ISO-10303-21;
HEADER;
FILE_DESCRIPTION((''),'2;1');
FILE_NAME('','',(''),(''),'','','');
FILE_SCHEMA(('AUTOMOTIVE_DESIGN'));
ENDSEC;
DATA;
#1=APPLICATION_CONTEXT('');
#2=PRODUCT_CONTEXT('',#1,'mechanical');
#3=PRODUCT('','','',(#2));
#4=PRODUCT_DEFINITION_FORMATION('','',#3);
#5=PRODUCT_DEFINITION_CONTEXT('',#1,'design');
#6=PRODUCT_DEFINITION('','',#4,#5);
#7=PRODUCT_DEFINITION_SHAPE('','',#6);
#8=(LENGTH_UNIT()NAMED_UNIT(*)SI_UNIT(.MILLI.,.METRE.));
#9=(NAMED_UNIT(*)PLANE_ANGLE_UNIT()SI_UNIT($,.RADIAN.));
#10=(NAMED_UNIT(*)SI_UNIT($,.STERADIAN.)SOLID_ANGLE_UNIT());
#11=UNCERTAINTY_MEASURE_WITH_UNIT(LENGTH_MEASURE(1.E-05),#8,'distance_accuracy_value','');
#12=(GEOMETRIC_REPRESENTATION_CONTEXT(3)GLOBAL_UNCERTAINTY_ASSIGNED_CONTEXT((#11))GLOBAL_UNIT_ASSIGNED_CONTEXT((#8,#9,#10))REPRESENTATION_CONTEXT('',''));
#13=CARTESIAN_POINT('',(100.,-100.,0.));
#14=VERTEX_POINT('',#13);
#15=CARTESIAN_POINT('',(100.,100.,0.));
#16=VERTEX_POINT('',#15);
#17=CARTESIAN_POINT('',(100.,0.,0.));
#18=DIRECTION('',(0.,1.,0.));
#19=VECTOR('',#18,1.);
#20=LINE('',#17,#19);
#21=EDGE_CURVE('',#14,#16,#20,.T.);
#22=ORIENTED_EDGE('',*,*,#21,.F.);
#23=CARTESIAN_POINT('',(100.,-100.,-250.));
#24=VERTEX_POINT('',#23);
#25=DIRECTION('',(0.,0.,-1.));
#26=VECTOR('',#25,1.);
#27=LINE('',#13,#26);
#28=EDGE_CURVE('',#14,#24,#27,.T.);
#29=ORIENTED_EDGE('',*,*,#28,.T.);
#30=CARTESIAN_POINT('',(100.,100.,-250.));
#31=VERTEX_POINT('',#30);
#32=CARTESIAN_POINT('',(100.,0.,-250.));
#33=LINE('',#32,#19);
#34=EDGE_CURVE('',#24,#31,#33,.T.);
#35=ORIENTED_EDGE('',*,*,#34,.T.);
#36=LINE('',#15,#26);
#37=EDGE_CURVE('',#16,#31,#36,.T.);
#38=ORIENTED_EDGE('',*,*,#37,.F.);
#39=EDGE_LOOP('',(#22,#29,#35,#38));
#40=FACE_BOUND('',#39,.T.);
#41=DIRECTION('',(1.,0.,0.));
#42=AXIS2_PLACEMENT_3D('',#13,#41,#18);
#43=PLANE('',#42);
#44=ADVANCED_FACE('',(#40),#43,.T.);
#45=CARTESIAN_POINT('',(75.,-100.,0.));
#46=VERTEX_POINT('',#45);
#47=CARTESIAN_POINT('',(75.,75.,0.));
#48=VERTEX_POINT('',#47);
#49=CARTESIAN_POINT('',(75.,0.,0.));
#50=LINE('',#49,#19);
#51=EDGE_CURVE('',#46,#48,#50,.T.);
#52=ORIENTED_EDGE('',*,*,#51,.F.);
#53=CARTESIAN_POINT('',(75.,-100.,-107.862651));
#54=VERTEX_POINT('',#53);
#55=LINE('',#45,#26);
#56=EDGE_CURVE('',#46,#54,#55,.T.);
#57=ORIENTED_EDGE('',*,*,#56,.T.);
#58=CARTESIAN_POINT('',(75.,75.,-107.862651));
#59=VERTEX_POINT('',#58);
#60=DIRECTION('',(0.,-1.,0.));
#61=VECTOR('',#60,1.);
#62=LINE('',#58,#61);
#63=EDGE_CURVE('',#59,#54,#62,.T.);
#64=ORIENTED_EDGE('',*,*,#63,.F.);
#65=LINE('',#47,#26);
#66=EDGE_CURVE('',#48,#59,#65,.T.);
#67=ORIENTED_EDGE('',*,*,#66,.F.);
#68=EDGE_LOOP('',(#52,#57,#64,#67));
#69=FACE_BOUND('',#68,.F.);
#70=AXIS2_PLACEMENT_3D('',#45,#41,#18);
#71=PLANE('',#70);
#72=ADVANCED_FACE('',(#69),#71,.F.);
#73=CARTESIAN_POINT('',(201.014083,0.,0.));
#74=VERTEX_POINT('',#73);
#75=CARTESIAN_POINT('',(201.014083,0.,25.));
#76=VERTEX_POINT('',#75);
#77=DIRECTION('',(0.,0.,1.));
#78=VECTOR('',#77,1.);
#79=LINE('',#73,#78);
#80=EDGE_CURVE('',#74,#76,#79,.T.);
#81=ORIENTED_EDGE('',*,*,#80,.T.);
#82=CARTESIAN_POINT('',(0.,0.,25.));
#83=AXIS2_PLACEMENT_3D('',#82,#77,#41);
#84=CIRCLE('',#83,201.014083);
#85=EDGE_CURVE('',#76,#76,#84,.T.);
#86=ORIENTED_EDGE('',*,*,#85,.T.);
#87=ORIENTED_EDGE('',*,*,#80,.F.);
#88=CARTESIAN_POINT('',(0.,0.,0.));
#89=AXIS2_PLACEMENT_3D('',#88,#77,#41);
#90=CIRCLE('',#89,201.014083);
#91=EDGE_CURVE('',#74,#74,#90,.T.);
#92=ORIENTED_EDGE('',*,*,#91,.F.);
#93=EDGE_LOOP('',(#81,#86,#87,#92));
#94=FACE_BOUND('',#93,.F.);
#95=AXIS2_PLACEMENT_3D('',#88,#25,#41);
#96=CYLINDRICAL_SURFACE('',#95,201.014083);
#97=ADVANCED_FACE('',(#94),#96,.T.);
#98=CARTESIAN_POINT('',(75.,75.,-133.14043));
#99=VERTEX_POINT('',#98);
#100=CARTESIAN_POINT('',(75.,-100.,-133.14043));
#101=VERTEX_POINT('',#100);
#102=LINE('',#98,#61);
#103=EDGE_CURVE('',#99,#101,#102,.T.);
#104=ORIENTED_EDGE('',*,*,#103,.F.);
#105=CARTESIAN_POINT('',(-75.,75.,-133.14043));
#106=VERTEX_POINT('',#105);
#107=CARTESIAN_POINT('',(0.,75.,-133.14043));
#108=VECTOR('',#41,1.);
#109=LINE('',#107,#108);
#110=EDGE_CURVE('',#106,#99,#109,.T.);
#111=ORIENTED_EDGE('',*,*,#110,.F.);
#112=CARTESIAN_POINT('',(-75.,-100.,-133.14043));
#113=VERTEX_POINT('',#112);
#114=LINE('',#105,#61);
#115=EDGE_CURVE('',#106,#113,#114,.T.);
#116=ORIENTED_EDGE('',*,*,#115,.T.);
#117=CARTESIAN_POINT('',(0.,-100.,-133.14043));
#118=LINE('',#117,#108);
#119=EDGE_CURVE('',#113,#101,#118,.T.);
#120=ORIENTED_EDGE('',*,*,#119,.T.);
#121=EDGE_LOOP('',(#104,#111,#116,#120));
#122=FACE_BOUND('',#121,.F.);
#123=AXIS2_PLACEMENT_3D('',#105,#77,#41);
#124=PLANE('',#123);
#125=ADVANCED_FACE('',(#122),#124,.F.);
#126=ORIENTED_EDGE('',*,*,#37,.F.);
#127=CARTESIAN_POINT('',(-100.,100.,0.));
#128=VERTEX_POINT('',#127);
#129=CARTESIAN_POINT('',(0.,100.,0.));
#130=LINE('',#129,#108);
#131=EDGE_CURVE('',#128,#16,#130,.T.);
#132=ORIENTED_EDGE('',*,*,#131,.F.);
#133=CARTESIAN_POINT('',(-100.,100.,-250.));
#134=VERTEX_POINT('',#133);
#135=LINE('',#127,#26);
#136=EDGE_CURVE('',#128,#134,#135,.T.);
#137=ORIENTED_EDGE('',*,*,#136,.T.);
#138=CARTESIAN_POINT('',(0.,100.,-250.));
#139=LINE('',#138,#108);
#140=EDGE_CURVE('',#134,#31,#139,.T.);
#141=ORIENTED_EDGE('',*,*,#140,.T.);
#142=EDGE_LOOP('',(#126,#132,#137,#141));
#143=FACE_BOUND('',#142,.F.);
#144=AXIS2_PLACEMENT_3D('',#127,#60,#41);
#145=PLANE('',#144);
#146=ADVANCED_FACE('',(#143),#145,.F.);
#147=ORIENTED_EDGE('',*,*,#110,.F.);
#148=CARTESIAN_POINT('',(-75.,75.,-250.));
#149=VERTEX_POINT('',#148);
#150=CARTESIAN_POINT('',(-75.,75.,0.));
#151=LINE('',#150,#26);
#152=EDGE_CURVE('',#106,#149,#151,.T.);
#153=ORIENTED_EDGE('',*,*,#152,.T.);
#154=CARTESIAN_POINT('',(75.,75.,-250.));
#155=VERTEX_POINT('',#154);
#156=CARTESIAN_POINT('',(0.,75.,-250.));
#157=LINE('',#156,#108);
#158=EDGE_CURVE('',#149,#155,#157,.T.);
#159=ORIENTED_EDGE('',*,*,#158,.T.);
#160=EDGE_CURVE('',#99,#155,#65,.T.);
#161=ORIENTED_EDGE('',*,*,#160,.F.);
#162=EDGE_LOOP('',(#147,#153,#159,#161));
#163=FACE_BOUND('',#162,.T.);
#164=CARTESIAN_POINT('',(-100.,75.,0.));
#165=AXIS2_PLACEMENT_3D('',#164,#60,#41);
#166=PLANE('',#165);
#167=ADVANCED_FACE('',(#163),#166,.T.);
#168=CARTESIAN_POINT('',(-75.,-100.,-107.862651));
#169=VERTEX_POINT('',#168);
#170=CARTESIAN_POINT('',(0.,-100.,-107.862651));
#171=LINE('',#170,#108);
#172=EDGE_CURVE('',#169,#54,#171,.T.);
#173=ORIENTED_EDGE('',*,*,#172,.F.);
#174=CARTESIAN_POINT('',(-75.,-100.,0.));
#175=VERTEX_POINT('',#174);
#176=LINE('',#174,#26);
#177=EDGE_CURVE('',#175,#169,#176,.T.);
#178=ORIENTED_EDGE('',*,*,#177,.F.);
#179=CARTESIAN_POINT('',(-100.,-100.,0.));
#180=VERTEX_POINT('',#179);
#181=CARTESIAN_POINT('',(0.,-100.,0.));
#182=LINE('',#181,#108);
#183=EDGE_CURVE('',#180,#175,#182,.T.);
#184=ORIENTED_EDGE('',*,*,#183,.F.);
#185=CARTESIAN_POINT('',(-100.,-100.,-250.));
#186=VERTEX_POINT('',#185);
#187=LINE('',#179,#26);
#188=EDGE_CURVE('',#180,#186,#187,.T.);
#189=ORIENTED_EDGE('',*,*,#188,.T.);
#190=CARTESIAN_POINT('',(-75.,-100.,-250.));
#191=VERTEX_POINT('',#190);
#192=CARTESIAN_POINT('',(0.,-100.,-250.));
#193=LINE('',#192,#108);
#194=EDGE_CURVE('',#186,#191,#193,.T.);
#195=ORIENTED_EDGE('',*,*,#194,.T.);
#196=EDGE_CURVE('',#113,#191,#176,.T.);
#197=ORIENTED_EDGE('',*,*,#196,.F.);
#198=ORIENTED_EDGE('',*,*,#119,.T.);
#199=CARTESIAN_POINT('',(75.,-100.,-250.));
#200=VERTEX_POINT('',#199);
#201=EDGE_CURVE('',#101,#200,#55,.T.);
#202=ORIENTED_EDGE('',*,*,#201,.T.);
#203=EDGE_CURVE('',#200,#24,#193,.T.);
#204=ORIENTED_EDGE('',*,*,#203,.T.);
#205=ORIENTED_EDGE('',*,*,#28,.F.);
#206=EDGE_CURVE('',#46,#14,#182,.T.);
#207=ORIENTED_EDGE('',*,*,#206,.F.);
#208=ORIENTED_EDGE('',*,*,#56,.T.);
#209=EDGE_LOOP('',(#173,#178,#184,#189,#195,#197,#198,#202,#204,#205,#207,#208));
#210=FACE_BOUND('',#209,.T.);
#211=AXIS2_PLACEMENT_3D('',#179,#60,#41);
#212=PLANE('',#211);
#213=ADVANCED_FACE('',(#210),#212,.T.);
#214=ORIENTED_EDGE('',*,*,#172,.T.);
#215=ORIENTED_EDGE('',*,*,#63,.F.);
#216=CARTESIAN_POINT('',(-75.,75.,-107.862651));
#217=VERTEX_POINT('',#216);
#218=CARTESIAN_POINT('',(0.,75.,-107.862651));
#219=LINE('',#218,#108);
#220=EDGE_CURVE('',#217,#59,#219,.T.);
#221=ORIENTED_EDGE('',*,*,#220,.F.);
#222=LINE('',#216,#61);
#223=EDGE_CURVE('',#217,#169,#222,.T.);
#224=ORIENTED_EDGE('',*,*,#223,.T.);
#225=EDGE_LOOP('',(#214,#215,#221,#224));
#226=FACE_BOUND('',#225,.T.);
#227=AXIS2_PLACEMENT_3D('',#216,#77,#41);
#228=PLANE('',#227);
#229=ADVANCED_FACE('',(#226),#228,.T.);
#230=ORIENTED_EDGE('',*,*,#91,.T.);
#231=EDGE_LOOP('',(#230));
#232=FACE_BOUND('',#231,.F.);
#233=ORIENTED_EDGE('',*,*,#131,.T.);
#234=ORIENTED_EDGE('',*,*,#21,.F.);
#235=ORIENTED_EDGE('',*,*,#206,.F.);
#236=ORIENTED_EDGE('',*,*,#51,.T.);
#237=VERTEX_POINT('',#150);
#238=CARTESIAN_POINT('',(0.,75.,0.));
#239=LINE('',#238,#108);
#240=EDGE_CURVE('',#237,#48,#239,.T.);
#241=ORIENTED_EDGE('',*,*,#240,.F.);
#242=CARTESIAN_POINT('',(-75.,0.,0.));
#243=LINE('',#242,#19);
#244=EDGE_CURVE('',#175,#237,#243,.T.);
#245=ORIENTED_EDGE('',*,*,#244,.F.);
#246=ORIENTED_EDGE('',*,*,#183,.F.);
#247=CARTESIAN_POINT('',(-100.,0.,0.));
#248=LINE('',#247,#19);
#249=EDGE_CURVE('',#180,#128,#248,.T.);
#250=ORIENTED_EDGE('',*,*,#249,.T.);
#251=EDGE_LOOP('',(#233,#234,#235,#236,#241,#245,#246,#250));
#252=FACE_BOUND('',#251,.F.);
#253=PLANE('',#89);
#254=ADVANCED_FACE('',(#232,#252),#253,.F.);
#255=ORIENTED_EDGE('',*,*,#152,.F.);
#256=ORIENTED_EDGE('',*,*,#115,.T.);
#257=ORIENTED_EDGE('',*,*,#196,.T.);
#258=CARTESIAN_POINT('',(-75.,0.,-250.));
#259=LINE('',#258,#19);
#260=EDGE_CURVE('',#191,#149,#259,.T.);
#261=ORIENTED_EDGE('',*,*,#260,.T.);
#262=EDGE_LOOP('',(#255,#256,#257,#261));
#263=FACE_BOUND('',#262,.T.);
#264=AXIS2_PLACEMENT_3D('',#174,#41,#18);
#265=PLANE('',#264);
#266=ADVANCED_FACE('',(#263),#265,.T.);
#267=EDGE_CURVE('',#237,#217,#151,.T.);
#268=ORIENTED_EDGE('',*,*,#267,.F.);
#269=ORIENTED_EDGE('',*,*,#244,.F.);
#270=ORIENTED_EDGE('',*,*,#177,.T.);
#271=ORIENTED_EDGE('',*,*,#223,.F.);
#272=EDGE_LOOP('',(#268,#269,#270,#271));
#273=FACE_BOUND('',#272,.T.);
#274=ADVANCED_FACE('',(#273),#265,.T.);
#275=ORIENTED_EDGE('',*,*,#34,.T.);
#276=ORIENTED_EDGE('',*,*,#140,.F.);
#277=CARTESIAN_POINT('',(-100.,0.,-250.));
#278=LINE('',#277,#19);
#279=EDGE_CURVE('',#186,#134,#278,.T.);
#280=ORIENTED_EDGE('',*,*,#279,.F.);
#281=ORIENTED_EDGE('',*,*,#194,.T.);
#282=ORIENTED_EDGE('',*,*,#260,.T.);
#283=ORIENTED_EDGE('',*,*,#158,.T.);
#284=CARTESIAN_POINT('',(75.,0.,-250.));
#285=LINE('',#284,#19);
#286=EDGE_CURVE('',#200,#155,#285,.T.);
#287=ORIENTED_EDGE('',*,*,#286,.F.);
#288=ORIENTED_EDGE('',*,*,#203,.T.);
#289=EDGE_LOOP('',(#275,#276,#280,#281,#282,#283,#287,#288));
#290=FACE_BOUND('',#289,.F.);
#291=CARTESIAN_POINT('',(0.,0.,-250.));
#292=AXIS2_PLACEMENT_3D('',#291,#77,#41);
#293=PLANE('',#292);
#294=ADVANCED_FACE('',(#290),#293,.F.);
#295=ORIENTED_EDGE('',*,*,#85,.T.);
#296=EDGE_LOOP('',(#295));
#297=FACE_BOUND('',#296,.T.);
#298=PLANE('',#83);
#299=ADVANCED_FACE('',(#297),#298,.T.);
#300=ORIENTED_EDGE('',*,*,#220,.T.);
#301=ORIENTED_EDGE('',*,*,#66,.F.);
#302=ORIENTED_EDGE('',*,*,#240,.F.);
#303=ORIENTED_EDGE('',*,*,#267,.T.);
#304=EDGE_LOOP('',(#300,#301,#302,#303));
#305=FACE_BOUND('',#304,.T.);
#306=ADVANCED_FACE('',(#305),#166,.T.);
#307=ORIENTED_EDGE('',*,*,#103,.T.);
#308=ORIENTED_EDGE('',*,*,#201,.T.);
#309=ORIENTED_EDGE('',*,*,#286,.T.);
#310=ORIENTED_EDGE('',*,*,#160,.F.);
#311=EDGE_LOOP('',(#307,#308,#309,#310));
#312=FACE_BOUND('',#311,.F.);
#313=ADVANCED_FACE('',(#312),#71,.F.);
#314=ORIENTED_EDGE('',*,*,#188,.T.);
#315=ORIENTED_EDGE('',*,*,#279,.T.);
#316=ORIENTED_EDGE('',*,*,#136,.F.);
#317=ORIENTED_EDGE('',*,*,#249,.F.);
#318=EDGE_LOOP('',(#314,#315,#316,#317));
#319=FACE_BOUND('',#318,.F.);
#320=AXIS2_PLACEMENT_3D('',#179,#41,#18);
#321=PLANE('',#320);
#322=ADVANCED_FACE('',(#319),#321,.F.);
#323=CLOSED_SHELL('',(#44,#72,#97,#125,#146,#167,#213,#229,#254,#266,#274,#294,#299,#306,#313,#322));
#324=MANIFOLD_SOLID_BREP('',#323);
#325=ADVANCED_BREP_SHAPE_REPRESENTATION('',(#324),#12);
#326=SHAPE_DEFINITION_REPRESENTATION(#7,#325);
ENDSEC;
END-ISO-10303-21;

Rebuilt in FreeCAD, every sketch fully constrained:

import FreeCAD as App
import Part
import Sketcher
from FreeCAD import Vector
Q = App.Units.Quantity


def faces_at(feature, points):
    """Names of the faces that lie closest to the given points."""
    faces = feature.Shape.Faces
    near = lambda p: min(range(len(faces)), key=lambda i: faces[i].distToShape(Part.Vertex(*p))[0])
    return sorted({f"Face{near(p) + 1}" for p in points})

doc = App.newDocument("Part")
body = doc.addObject("PartDesign::Body", "Body")

# Sketch on XY plane
sketch1 = body.newObject("Sketcher::SketchObject", "Sketch")
sketch1.AttachmentSupport = (doc.getObject("XY_Plane"), [""])
sketch1.MapMode = "FlatFace"
sketch1.addGeometry([
    Part.LineSegment(Vector(-100, 100, 0), Vector(-100, -100, 0)),
    Part.LineSegment(Vector(-100, -100, 0), Vector(100, -100, 0)),
    Part.LineSegment(Vector(100, -100, 0), Vector(100, 100, 0)),
    Part.LineSegment(Vector(100, 100, 0), Vector(-100, 100, 0)),
], False)
sketch1.addConstraint([
    Sketcher.Constraint("Coincident", 0, 2, 1, 1),
    Sketcher.Constraint("Coincident", 1, 2, 2, 1),
    Sketcher.Constraint("Coincident", 2, 2, 3, 1),
    Sketcher.Constraint("Coincident", 3, 2, 0, 1),
    Sketcher.Constraint("Vertical", 0),
    Sketcher.Constraint("Horizontal", 1),
    Sketcher.Constraint("Vertical", 2),
    Sketcher.Constraint("Horizontal", 3),
    Sketcher.Constraint("Symmetric", 0, 2, 2, 2, -1, 1),
    Sketcher.Constraint("Equal", 3, 0),
    Sketcher.Constraint("DistanceX", 1, 1, 1, 2, Q("200 mm")),
])
pad1 = body.newObject("PartDesign::Pad", "Pad")
pad1.Profile = sketch1
pad1.Length = 250
pad1.Reversed = True
doc.recompute()

thickness = body.newObject("PartDesign::Thickness", "Thickness")
thickness.Base = (pad1, faces_at(pad1, [(0, -100, -125), (0, 0, 0), (0, 0, -250)]))
thickness.Value = 25
thickness.Reversed = True
thickness.Join = "Arc"

# Sketch on XZ plane
sketch2 = body.newObject("Sketcher::SketchObject", "Sketch001")
sketch2.AttachmentSupport = (doc.getObject("XZ_Plane"), [""])
sketch2.MapMode = "FlatFace"
sketch2.AttachmentOffset = App.Placement(Vector(0, 0, -75), App.Rotation())
sketch2.addGeometry([
    Part.LineSegment(Vector(-75, -107.862651, 0), Vector(-75, -133.14043, 0)),
    Part.LineSegment(Vector(-75, -133.14043, 0), Vector(75, -133.14043, 0)),
    Part.LineSegment(Vector(75, -133.14043, 0), Vector(75, -107.862651, 0)),
    Part.LineSegment(Vector(75, -107.862651, 0), Vector(-75, -107.862651, 0)),
], False)
sketch2.addConstraint([
    Sketcher.Constraint("Coincident", 0, 2, 1, 1),
    Sketcher.Constraint("Coincident", 1, 2, 2, 1),
    Sketcher.Constraint("Coincident", 2, 2, 3, 1),
    Sketcher.Constraint("Coincident", 3, 2, 0, 1),
    Sketcher.Constraint("Vertical", 0),
    Sketcher.Constraint("Horizontal", 1),
    Sketcher.Constraint("Vertical", 2),
    Sketcher.Constraint("Horizontal", 3),
    Sketcher.Constraint("DistanceX", 1, 1, 1, 2, Q("150 mm")),
    Sketcher.Constraint("DistanceX", 0, 2, -1, 1, Q("75 mm")),
    Sketcher.Constraint("DistanceY", 0, 2, 0, 1, Q("25.277779 mm")),
    Sketcher.Constraint("DistanceY", 0, 2, -1, 1, Q("133.14043 mm")),
])
pad2 = body.newObject("PartDesign::Pad", "Pad001")
pad2.Profile = sketch2
pad2.Length = 175

# Sketch on XY plane
sketch3 = body.newObject("Sketcher::SketchObject", "Sketch002")
sketch3.AttachmentSupport = (doc.getObject("XY_Plane"), [""])
sketch3.MapMode = "FlatFace"
sketch3.addGeometry(Part.Circle(Vector(0, 0, 0), Vector(0, 0, 1), 201.014083), False)
sketch3.addConstraint([
    Sketcher.Constraint("Coincident", 0, 3, -1, 1),
    Sketcher.Constraint("Diameter", 0, Q("402.028165 mm")),
])
pad3 = body.newObject("PartDesign::Pad", "Pad002")
pad3.Profile = sketch3
pad3.Length = 25

doc.recompute()
